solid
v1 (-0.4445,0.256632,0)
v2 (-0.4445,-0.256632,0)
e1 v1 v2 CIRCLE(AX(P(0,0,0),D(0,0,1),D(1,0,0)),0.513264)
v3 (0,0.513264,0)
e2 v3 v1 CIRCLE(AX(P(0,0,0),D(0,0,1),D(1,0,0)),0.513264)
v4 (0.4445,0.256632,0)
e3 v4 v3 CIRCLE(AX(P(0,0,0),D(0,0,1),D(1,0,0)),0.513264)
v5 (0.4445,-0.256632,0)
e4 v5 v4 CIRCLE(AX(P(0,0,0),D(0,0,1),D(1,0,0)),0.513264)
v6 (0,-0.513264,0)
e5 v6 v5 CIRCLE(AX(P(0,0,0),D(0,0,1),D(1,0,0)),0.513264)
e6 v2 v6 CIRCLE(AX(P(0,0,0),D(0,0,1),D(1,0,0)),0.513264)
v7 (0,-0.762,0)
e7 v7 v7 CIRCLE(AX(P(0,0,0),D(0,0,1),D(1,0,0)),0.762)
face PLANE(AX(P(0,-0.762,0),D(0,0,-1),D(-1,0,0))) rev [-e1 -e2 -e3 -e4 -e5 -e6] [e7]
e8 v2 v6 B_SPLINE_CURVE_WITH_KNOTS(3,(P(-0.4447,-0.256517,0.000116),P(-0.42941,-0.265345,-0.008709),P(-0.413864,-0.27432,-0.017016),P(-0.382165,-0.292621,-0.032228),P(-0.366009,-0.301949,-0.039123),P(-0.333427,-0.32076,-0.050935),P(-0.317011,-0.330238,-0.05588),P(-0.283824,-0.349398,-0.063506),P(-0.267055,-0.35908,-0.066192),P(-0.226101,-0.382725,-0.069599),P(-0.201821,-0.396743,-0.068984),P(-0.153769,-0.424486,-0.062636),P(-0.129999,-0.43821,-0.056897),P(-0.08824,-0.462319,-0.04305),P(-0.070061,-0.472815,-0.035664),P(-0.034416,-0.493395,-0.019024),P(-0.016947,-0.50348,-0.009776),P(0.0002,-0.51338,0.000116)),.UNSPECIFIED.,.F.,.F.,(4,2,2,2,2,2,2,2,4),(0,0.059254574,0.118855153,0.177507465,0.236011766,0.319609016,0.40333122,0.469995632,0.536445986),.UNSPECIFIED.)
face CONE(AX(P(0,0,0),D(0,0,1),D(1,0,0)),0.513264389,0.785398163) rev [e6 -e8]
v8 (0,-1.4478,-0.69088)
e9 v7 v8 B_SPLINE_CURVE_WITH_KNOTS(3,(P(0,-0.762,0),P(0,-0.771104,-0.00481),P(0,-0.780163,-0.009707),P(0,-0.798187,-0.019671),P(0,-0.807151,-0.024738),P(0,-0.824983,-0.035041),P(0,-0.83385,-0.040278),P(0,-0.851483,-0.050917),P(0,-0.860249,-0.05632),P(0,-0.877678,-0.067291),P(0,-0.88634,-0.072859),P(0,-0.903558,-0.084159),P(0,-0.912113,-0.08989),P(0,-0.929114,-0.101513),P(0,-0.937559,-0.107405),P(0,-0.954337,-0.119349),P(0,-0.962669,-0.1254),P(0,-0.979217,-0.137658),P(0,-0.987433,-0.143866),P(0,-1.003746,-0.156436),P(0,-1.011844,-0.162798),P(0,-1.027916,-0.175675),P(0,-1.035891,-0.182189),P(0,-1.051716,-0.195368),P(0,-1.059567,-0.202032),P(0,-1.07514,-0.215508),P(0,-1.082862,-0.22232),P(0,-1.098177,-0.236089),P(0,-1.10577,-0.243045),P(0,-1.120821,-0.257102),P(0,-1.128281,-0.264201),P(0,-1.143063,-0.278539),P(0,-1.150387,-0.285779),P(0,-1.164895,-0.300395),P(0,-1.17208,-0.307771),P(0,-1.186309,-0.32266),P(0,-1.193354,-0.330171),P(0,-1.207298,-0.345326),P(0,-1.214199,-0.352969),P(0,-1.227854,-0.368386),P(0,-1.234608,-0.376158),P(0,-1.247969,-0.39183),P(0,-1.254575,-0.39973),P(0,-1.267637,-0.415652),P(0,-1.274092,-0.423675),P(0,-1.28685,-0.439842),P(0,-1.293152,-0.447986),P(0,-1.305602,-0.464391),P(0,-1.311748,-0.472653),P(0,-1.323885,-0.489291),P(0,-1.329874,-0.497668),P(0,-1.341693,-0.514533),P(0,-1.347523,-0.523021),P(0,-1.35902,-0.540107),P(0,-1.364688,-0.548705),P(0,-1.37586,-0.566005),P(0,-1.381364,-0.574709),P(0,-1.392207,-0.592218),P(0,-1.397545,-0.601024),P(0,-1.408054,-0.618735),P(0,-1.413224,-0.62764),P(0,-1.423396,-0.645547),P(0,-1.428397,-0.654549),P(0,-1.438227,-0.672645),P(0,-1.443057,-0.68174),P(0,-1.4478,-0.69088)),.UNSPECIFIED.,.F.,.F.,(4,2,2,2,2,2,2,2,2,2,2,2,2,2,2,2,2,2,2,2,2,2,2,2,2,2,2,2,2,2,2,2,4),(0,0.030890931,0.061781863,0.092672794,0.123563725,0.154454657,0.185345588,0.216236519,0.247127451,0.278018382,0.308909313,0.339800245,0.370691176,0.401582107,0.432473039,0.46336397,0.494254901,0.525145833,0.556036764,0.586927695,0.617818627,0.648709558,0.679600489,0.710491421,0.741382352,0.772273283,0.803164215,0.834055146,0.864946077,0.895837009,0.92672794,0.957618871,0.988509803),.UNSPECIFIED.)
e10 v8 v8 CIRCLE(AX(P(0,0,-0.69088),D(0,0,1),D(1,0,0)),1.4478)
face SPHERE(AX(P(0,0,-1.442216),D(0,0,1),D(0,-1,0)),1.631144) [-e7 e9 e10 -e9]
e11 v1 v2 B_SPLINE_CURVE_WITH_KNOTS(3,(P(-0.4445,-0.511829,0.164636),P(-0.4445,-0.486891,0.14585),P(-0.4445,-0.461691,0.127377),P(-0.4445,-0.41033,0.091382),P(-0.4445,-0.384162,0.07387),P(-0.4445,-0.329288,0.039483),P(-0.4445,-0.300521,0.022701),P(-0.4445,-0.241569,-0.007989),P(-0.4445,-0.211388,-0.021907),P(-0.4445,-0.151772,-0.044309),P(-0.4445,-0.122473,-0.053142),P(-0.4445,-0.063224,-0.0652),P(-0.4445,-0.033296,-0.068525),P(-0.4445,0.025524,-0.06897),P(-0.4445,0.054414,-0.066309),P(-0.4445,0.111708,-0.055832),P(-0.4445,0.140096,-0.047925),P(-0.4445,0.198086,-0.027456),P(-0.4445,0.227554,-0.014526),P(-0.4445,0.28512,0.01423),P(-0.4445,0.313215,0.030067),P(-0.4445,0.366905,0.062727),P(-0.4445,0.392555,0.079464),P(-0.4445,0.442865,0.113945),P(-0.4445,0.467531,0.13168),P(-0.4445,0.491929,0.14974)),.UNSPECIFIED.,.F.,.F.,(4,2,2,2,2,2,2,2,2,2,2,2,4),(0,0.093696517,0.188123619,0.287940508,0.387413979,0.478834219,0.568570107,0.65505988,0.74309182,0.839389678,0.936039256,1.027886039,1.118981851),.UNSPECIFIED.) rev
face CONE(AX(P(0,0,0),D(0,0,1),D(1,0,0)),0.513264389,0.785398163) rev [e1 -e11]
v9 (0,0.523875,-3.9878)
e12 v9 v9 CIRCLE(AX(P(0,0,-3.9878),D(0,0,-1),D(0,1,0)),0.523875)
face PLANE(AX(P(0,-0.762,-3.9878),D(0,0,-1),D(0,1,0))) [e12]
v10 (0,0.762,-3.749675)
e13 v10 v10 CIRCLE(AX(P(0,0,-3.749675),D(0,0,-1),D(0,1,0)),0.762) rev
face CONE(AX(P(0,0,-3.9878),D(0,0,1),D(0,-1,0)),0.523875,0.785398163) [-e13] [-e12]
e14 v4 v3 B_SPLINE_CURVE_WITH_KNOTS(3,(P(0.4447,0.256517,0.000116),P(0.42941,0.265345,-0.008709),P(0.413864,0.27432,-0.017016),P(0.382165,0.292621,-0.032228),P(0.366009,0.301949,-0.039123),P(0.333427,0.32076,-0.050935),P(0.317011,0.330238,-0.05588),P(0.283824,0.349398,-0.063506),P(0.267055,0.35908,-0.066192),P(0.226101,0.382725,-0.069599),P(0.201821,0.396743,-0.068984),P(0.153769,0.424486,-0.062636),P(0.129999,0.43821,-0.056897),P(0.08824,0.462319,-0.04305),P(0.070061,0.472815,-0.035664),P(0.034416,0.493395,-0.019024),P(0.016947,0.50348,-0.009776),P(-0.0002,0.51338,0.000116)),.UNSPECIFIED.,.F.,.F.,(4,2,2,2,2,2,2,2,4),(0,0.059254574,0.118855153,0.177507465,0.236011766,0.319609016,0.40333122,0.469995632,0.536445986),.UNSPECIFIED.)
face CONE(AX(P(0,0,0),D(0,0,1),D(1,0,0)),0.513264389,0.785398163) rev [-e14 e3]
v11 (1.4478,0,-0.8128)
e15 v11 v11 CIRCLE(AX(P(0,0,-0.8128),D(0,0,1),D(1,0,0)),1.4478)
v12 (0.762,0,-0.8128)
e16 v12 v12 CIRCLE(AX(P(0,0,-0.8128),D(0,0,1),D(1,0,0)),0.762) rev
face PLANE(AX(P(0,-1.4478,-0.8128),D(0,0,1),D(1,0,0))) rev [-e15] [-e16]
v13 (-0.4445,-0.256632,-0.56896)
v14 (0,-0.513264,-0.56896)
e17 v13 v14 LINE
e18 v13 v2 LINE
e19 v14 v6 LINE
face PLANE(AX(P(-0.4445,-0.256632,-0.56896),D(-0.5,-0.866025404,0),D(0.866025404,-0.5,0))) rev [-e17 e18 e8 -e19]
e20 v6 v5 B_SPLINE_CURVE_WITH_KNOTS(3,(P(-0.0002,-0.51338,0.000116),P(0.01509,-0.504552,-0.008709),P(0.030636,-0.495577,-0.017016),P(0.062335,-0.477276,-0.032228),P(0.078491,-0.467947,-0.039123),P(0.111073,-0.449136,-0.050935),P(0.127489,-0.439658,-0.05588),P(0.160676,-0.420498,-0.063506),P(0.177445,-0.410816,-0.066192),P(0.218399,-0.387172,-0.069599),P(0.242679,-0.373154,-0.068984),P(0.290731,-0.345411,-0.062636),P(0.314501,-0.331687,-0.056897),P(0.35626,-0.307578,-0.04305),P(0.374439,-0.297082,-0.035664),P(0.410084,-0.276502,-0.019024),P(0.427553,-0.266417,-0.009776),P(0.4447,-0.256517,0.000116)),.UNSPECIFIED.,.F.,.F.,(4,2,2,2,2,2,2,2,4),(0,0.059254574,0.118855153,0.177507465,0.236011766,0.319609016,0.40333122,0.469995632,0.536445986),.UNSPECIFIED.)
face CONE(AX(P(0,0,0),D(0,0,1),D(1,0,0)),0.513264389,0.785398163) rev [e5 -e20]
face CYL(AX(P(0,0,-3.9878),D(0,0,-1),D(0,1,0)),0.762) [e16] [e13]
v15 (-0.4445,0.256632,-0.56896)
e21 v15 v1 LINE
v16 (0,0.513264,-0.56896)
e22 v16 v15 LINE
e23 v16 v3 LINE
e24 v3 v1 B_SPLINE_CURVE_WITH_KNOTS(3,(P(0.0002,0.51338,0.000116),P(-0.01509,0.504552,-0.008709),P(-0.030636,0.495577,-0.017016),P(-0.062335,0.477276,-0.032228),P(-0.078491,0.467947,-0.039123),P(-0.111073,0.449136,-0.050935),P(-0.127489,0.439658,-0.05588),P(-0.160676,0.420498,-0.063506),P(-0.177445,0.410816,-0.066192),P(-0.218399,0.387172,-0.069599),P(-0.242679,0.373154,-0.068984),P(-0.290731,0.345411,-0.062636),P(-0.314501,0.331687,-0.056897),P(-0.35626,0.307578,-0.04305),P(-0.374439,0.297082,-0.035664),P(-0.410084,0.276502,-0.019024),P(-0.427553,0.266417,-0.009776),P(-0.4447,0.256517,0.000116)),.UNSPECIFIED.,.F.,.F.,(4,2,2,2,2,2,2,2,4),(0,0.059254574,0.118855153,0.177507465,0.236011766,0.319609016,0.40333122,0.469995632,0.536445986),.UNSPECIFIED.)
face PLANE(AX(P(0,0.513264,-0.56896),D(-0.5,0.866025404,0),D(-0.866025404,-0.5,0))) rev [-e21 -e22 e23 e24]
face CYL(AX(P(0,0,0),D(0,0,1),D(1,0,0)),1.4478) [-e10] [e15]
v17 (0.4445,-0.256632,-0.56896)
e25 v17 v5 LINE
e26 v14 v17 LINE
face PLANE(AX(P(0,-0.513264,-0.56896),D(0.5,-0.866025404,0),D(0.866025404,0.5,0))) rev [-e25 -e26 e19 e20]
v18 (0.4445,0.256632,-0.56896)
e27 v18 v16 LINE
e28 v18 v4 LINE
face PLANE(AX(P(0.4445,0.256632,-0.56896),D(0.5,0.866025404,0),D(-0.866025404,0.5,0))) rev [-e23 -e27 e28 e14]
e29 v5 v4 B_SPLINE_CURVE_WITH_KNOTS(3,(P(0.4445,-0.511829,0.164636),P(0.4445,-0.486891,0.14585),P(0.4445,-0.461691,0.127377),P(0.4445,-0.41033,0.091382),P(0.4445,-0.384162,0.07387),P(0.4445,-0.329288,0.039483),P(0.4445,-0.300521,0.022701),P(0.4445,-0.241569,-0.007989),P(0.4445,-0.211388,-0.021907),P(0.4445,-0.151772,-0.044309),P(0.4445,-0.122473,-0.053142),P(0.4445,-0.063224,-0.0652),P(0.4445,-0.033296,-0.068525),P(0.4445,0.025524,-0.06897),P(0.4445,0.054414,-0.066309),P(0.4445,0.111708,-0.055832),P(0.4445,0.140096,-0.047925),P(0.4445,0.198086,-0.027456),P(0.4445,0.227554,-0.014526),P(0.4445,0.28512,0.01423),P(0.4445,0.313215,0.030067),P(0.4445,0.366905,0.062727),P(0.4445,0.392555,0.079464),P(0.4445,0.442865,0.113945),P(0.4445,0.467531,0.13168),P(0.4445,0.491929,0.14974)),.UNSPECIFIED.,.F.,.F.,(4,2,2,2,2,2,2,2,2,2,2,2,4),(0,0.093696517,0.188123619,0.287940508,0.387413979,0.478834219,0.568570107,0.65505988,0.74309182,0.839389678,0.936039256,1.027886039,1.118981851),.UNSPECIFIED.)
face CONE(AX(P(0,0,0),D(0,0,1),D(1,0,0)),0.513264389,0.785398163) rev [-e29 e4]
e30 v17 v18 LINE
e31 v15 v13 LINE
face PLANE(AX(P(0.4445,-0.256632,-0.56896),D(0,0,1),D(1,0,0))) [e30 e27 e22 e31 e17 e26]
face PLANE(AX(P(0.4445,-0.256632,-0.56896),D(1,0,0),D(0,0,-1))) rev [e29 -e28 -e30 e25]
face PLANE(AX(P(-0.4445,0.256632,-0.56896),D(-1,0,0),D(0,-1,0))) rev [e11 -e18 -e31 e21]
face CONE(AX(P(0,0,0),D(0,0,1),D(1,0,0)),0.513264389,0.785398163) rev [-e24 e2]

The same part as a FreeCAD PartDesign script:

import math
import FreeCAD as App
import Part
import Sketcher

V = App.Vector
Q = App.Units.Quantity


def edges_at(feature, points):
    """Names of the edges that pass closest to the given points."""
    edges = feature.Shape.Edges
    near = lambda p: min(range(len(edges)), key=lambda i: edges[i].distToShape(Part.Vertex(*p))[0])
    return sorted({f"Edge{near(p) + 1}" for p in points})

doc = App.newDocument("Part")
body = doc.addObject("PartDesign::Body", "Body")

# Sketch on YZ plane
sketch1 = doc.addObject("Sketcher::SketchObject", "Sketch")
body.addObject(sketch1)
sketch1.AttachmentSupport = (doc.YZ_Plane, [""])
sketch1.MapMode = "FlatFace"
sketch1.addGeometry(Part.LineSegment(V(0.762, -0.8128, 0), V(0, -0.8128, 0)), False)
sketch1.addGeometry(Part.LineSegment(V(0, -0.8128, 0), V(0, -3.9878, 0)), False)
sketch1.addGeometry(Part.LineSegment(V(0, -3.9878, 0), V(0.762, -3.9878, 0)), False)
sketch1.addGeometry(Part.LineSegment(V(0.762, -3.9878, 0), V(0.762, -0.8128, 0)), False)
sketch1.addConstraint(Sketcher.Constraint("Coincident", 0, 2, 1, 1))
sketch1.addConstraint(Sketcher.Constraint("Coincident", 1, 2, 2, 1))
sketch1.addConstraint(Sketcher.Constraint("Coincident", 2, 2, 3, 1))
sketch1.addConstraint(Sketcher.Constraint("Coincident", 3, 2, 0, 1))
sketch1.addConstraint(Sketcher.Constraint("Horizontal", 0))
sketch1.addConstraint(Sketcher.Constraint("Vertical", 1))
sketch1.addConstraint(Sketcher.Constraint("Horizontal", 2))
sketch1.addConstraint(Sketcher.Constraint("Vertical", 3))
sketch1.addConstraint(Sketcher.Constraint("PointOnObject", 0, 2, -2))
sketch1.addConstraint(Sketcher.Constraint("DistanceX", 0, 2, 0, 1, Q("0.03 in")))
sketch1.addConstraint(Sketcher.Constraint("DistanceY", 1, 2, 1, 1, Q("0.125 in")))
sketch1.addConstraint(Sketcher.Constraint("DistanceY", 0, 2, -1, 1, Q("0.032 in")))
revolution = doc.addObject("PartDesign::Revolution", "Revolution")
body.addObject(revolution)
revolution.Profile = sketch1
revolution.ReferenceAxis = (sketch1, ["V_Axis"])
revolution.Angle = 360
doc.recompute()

chamfer = doc.addObject("PartDesign::Chamfer", "Chamfer")
body.addObject(chamfer)
chamfer.Base = (revolution, edges_at(revolution, [(0, -0.762, -3.988)]))
chamfer.Size = 0.238125

# Sketch on YZ plane
sketch2 = doc.addObject("Sketcher::SketchObject", "Sketch001")
body.addObject(sketch2)
sketch2.AttachmentSupport = (doc.YZ_Plane, [""])
sketch2.MapMode = "FlatFace"
sketch2.addGeometry(Part.LineSegment(V(1.4478, -0.8128, 0), V(1.4478, -0.69088, 0)), False)
sketch2.addGeometry(Part.ArcOfCircle(Part.Circle(V(0, -1.442216, 0), V(0, 0, 1), 1.631144), math.radians(27.427053), math.radians(62.150101)), False)
sketch2.addGeometry(Part.LineSegment(V(0.762, 0, 0), V(0, 0, 0)), False)
sketch2.addGeometry(Part.LineSegment(V(0, 0, 0), V(0, -0.8128, 0)), False)
sketch2.addGeometry(Part.LineSegment(V(0, -0.8128, 0), V(1.4478, -0.8128, 0)), False)
sketch2.addConstraint(Sketcher.Constraint("Coincident", 0, 2, 1, 1))
sketch2.addConstraint(Sketcher.Constraint("Coincident", 1, 2, 2, 1))
sketch2.addConstraint(Sketcher.Constraint("Coincident", 2, 2, 3, 1))
sketch2.addConstraint(Sketcher.Constraint("Coincident", 3, 2, 4, 1))
sketch2.addConstraint(Sketcher.Constraint("Coincident", 4, 2, 0, 1))
sketch2.addConstraint(Sketcher.Constraint("Vertical", 0))
sketch2.addConstraint(Sketcher.Constraint("Horizontal", 2))
sketch2.addConstraint(Sketcher.Constraint("Vertical", 3))
sketch2.addConstraint(Sketcher.Constraint("Horizontal", 4))
sketch2.addConstraint(Sketcher.Constraint("Coincident", 2, 2, -1, 1))
sketch2.addConstraint(Sketcher.Constraint("PointOnObject", 1, 3, -2))
sketch2.addConstraint(Sketcher.Constraint("DistanceX", 2, 2, 2, 1, Q("0.03 in")))
sketch2.addConstraint(Sketcher.Constraint("DistanceX", 4, 1, 4, 2, Q("0.057 in")))
sketch2.addConstraint(Sketcher.Constraint("DistanceY", 3, 2, 3, 1, Q("0.032 in")))
sketch2.addConstraint(Sketcher.Constraint("DistanceY", 0, 1, 0, 2, Q("0.0048 in")))
revolution2 = doc.addObject("PartDesign::Revolution", "Revolution001")
body.addObject(revolution2)
revolution2.Profile = sketch2
revolution2.ReferenceAxis = (sketch2, ["V_Axis"])
revolution2.Angle = 360

# Sketch on XY plane
sketch3 = doc.addObject("Sketcher::SketchObject", "Sketch002")
body.addObject(sketch3)
sketch3.AttachmentSupport = (doc.XY_Plane, [""])
sketch3.MapMode = "FlatFace"
sketch3.addGeometry(Part.LineSegment(V(0.4445, -0.256632, 0), V(0.4445, 0.256632, 0)), False)
sketch3.addGeometry(Part.LineSegment(V(0.4445, 0.256632, 0), V(0, 0.513264, 0)), False)
sketch3.addGeometry(Part.LineSegment(V(0, 0.513264, 0), V(-0.4445, 0.256632, 0)), False)
sketch3.addGeometry(Part.LineSegment(V(-0.4445, 0.256632, 0), V(-0.4445, -0.256632, 0)), False)
sketch3.addGeometry(Part.LineSegment(V(-0.4445, -0.256632, 0), V(0, -0.513264, 0)), False)
sketch3.addGeometry(Part.LineSegment(V(0, -0.513264, 0), V(0.4445, -0.256632, 0)), False)
sketch3.addConstraint(Sketcher.Constraint("Coincident", 0, 2, 1, 1))
sketch3.addConstraint(Sketcher.Constraint("Coincident", 1, 2, 2, 1))
sketch3.addConstraint(Sketcher.Constraint("Coincident", 2, 2, 3, 1))
sketch3.addConstraint(Sketcher.Constraint("Coincident", 3, 2, 4, 1))
sketch3.addConstraint(Sketcher.Constraint("Coincident", 4, 2, 5, 1))
sketch3.addConstraint(Sketcher.Constraint("Coincident", 5, 2, 0, 1))
sketch3.addConstraint(Sketcher.Constraint("Vertical", 0))
sketch3.addConstraint(Sketcher.Constraint("Vertical", 3))
sketch3.addConstraint(Sketcher.Constraint("Symmetric", 0, 2, 3, 2, -1, 1))
sketch3.addConstraint(Sketcher.Constraint("Symmetric", 1, 2, 4, 2, -1, 1))
sketch3.addConstraint(Sketcher.Constraint("PointOnObject", 1, 2, -2))
sketch3.addConstraint(Sketcher.Constraint("Parallel", 2, 5))
sketch3.addConstraint(Sketcher.Constraint("Horizontal", 0, 2, 2, 2))
sketch3.addConstraint(Sketcher.Constraint("Angle", 1, Q("150 deg")))
sketch3.addConstraint(Sketcher.Constraint("DistanceX", 2, 2, 0, 2, Q("0.035 in")))
sketch3.addConstraint(Sketcher.Constraint("DistanceY", 0, 1, 0, 2, 0.513264))
pocket1 = doc.addObject("PartDesign::Pocket", "Pocket")
body.addObject(pocket1)
pocket1.Profile = sketch3
pocket1.Length = Q("0.0224 in")

# Sketch on YZ plane
sketch4 = doc.addObject("Sketcher::SketchObject", "Sketch003")
body.addObject(sketch4)
sketch4.AttachmentSupport = (doc.YZ_Plane, [""])
sketch4.MapMode = "FlatFace"
sketch4.addGeometry(Part.LineSegment(V(0, 0, 0), V(-0.513264, 0, 0)), False)
sketch4.addGeometry(Part.LineSegment(V(-0.513264, 0, 0), V(0, -0.513264, 0)), False)
sketch4.addGeometry(Part.LineSegment(V(0, -0.513264, 0), V(0, 0, 0)), False)
sketch4.addConstraint(Sketcher.Constraint("Coincident", 0, 2, 1, 1))
sketch4.addConstraint(Sketcher.Constraint("Coincident", 1, 2, 2, 1))
sketch4.addConstraint(Sketcher.Constraint("Coincident", 2, 2, 0, 1))
sketch4.addConstraint(Sketcher.Constraint("Horizontal", 0))
sketch4.addConstraint(Sketcher.Constraint("Vertical", 2))
sketch4.addConstraint(Sketcher.Constraint("Coincident", 2, 2, -1, 1))
sketch4.addConstraint(Sketcher.Constraint("Equal", 0, 2))
sketch4.addConstraint(Sketcher.Constraint("DistanceX", 0, 2, 0, 1, 0.513264))
groove = doc.addObject("PartDesign::Groove", "Groove")
body.addObject(groove)
groove.Profile = sketch4
groove.ReferenceAxis = (sketch4, ["V_Axis"])
groove.Angle = 360

doc.recompute()
